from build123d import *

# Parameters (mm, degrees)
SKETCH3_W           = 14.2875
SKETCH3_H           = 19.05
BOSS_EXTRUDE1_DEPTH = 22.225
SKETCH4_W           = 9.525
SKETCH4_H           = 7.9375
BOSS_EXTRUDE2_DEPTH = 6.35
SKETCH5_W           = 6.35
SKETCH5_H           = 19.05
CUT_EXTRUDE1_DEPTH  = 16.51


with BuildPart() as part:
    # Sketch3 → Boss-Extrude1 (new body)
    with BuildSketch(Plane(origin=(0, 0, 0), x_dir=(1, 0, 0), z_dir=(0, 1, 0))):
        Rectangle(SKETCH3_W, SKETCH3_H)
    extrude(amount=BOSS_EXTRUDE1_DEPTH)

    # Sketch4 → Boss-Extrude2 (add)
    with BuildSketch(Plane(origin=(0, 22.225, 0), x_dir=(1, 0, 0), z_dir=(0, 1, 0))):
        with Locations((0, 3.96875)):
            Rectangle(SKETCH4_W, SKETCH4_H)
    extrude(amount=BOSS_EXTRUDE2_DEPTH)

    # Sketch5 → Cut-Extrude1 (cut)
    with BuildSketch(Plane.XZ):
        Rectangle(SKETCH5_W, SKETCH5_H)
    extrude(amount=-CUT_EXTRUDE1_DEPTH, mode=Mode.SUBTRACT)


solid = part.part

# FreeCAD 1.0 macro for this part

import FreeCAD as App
import Part
import Sketcher

V = App.Vector
Q = App.Units.Quantity


def add_polygon(sketch, points):
    """Adds a closed chain of lines whose ends are joined by coincident constraints."""
    first, n = sketch.GeometryCount, len(points)
    for a, b in zip(points, points[1:] + points[:1]):
        sketch.addGeometry(Part.LineSegment(App.Vector(*a, 0), App.Vector(*b, 0)), False)
    for i in range(n):
        sketch.addConstraint(Sketcher.Constraint("Coincident", first + i, 2, first + (i + 1) % n, 1))

doc = App.newDocument("Part")
params = doc.addObject("Spreadsheet::Sheet", "Params")
for row, (alias, value) in enumerate([
    ("sketch1_height", "0.75 in"),
    ("sketch1_width", "0.5625 in"),
    ("pad1_length", "0.875 in"),
    ("sketch2_width", "0.375 in"),
    ("sketch2_height", "0.3125 in"),
    ("pad2_length", "0.25 in"),
    ("sketch3_width", "0.25 in"),
    ("sketch3_height", "0.75 in"),
    ("pocket1_length", "0.65 in"),
], start=1):
    params.set(f"A{row}", alias)
    params.set(f"B{row}", "=" + value)
    params.setAlias(f"B{row}", alias)

body = doc.addObject("PartDesign::Body", "Body")

sketch1 = doc.addObject("Sketcher::SketchObject", "Sketch")
body.addObject(sketch1)
sketch1.AttachmentSupport = (doc.XZ_Plane, [""])
sketch1.MapMode = "FlatFace"
add_polygon(sketch1, [(-7, -10), (-7, 10), (7, 10), (7, -10)])
sketch1.addConstraint([
    Sketcher.Constraint("Vertical", 0),
    Sketcher.Constraint("Horizontal", 1),
    Sketcher.Constraint("Vertical", 2),
    Sketcher.Constraint("Horizontal", 3),
    Sketcher.Constraint("Symmetric", 0, 2, 2, 2, -1, 1),
    Sketcher.Constraint("DistanceY", 0, 1, 0, 2, Q("0.75 in")),
    Sketcher.Constraint("DistanceX", 1, 1, 1, 2, Q("0.5625 in")),
])
sketch1.setExpression("Constraints[9]", "Params.sketch1_height")
sketch1.setExpression("Constraints[10]", "Params.sketch1_width")
pad1 = doc.addObject("PartDesign::Pad", "Pad")
body.addObject(pad1)
pad1.Profile = sketch1
pad1.setExpression("Length", "Params.pad1_length")
pad1.Reversed = True

sketch2 = doc.addObject("Sketcher::SketchObject", "Sketch001")
body.addObject(sketch2)
sketch2.AttachmentSupport = (doc.XZ_Plane, [""])
sketch2.MapMode = "FlatFace"
sketch2.AttachmentOffset = App.Placement(V(0, 0, -0.875 * 25.4), App.Rotation())
add_polygon(sketch2, [(-5, -8), (-5, 0), (5, 0), (5, -8)])
sketch2.addConstraint([
    Sketcher.Constraint("Vertical", 0),
    Sketcher.Constraint("Horizontal", 1),
    Sketcher.Constraint("Vertical", 2),
    Sketcher.Constraint("Horizontal", 3),
    Sketcher.Constraint("Symmetric", 0, 2, 1, 2, -1, 1),
    Sketcher.Constraint("DistanceX", 1, 1, 1, 2, Q("0.375 in")),
    Sketcher.Constraint("DistanceY", 0, 1, 0, 2, Q("0.3125 in")),
])
sketch2.setExpression("Constraints[9]", "Params.sketch2_width")
sketch2.setExpression("Constraints[10]", "Params.sketch2_height")
pad2 = doc.addObject("PartDesign::Pad", "Pad001")
body.addObject(pad2)
pad2.Profile = sketch2
pad2.setExpression("Length", "Params.pad2_length")
pad2.Reversed = True

sketch3 = doc.addObject("Sketcher::SketchObject", "Sketch002")
body.addObject(sketch3)
sketch3.AttachmentSupport = (doc.XZ_Plane, [""])
sketch3.MapMode = "FlatFace"
add_polygon(sketch3, [(-3, 10), (-3, -10), (3, -10), (3, 10)])
sketch3.addConstraint([
    Sketcher.Constraint("Vertical", 0),
    Sketcher.Constraint("Horizontal", 1),
    Sketcher.Constraint("Vertical", 2),
    Sketcher.Constraint("Horizontal", 3),
    Sketcher.Constraint("Symmetric", 0, 2, 2, 2, -1, 1),
    Sketcher.Constraint("DistanceX", 1, 1, 1, 2, Q("0.25 in")),
    Sketcher.Constraint("DistanceY", 0, 2, 0, 1, Q("0.75 in")),
])
sketch3.setExpression("Constraints[9]", "Params.sketch3_width")
sketch3.setExpression("Constraints[10]", "Params.sketch3_height")
pocket1 = doc.addObject("PartDesign::Pocket", "Pocket")
body.addObject(pocket1)
pocket1.Profile = sketch3
pocket1.setExpression("Length", "Params.pocket1_length")

doc.recompute()
